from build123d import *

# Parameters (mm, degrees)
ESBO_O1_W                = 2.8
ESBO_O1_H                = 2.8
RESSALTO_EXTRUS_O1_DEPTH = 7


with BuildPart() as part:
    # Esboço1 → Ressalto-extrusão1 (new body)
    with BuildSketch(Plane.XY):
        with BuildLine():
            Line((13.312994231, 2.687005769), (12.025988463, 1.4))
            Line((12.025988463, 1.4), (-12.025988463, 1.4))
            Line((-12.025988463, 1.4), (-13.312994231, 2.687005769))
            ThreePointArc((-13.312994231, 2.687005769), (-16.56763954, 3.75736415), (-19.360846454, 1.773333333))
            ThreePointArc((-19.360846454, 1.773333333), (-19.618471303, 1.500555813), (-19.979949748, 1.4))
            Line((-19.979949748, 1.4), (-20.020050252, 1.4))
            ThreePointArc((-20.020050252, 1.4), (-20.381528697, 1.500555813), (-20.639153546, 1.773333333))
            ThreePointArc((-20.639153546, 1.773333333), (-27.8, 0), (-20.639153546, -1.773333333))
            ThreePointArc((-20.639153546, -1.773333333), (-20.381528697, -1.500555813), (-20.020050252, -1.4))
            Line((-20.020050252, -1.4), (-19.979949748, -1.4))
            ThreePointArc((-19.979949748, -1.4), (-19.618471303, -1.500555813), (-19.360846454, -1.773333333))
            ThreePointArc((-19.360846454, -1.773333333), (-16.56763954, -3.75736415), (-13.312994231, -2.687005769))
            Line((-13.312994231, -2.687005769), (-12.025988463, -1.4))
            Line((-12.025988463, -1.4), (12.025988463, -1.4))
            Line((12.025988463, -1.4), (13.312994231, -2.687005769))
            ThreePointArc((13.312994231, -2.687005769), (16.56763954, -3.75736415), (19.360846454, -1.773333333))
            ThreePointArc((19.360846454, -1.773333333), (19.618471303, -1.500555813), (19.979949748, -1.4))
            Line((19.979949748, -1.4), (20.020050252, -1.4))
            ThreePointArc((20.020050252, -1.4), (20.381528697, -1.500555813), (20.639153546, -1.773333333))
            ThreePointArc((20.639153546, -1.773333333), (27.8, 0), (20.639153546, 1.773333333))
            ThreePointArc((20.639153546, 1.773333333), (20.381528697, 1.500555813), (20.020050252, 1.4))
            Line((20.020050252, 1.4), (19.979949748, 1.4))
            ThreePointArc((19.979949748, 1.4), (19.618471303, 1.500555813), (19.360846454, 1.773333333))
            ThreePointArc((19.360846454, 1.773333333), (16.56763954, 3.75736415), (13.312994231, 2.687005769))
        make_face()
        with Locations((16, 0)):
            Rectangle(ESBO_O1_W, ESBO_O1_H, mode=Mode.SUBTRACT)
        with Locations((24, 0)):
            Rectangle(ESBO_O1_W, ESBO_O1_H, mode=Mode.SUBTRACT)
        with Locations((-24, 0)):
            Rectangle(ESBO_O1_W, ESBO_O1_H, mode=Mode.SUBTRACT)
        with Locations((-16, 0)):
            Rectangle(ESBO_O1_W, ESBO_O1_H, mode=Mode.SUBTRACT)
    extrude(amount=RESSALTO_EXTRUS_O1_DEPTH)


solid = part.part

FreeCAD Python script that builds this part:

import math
import FreeCAD as App
import Part
import Sketcher

V = App.Vector
Q = App.Units.Quantity


def add_polygon(sketch, points):
    """Adds a closed chain of lines whose ends are joined by coincident constraints."""
    first, n = sketch.GeometryCount, len(points)
    for a, b in zip(points, points[1:] + points[:1]):
        sketch.addGeometry(Part.LineSegment(App.Vector(*a, 0), App.Vector(*b, 0)), False)
    for i in range(n):
        sketch.addConstraint(Sketcher.Constraint("Coincident", first + i, 2, first + (i + 1) % n, 1))

doc = App.newDocument("Part")
body = doc.addObject("PartDesign::Body", "Body")

# Sketch on XY plane
sketch1 = body.newObject("Sketcher::SketchObject", "Sketch")
sketch1.AttachmentSupport = (doc.getObject("XY_Plane"), [""])
sketch1.MapMode = "FlatFace"
sketch1.addGeometry(Part.LineSegment(V(13.313, 2.687, 0), V(12.026, 1.4, 0)), False)  # 0
sketch1.addGeometry(Part.LineSegment(V(12.026, 1.4, 0), V(-12.026, 1.4, 0)), False)  # 1
sketch1.addGeometry(Part.LineSegment(V(-12.026, 1.4, 0), V(-13.313, 2.687, 0)), False)  # 2
sketch1.addGeometry(Part.ArcOfCircle(Part.Circle(V(-16, 0, 0), V(0, 0, 1), 3.8), math.radians(45), math.radians(152)), False)  # 3
sketch1.addGeometry(Part.ArcOfCircle(Part.Circle(V(-19.98, 2.1, 0), V(0, 0, 1), 0.7), math.radians(-90), math.radians(-28)), False)  # 4
sketch1.addGeometry(Part.LineSegment(V(-19.98, 1.4, 0), V(-20.02, 1.4, 0)), False)  # 5
sketch1.addGeometry(Part.ArcOfCircle(Part.Circle(V(-20.02, 2.1, 0), V(0, 0, 1), 0.7), math.radians(-152), math.radians(-90)), False)  # 6
sketch1.addGeometry(Part.ArcOfCircle(Part.Circle(V(-24, 0, 0), V(0, 0, 1), 3.8), math.radians(28), math.radians(332)), False)  # 7
sketch1.addGeometry(Part.ArcOfCircle(Part.Circle(V(-20.02, -2.1, 0), V(0, 0, 1), 0.7), math.radians(90), math.radians(152)), False)  # 8
sketch1.addGeometry(Part.LineSegment(V(-20.02, -1.4, 0), V(-19.98, -1.4, 0)), False)  # 9
sketch1.addGeometry(Part.ArcOfCircle(Part.Circle(V(-19.98, -2.1, 0), V(0, 0, 1), 0.7), math.radians(28), math.radians(90)), False)  # 10
sketch1.addGeometry(Part.ArcOfCircle(Part.Circle(V(-16, 0, 0), V(0, 0, 1), 3.8), math.radians(-152), math.radians(-45)), False)  # 11
sketch1.addGeometry(Part.LineSegment(V(-13.313, -2.687, 0), V(-12.026, -1.4, 0)), False)  # 12
sketch1.addGeometry(Part.LineSegment(V(-12.026, -1.4, 0), V(12.026, -1.4, 0)), False)  # 13
sketch1.addGeometry(Part.LineSegment(V(12.026, -1.4, 0), V(13.313, -2.687, 0)), False)  # 14
sketch1.addGeometry(Part.ArcOfCircle(Part.Circle(V(16, 0, 0), V(0, 0, 1), 3.8), math.radians(-135), math.radians(-28)), False)  # 15
sketch1.addGeometry(Part.ArcOfCircle(Part.Circle(V(19.98, -2.1, 0), V(0, 0, 1), 0.7), math.radians(90), math.radians(152)), False)  # 16
sketch1.addGeometry(Part.LineSegment(V(19.98, -1.4, 0), V(20.02, -1.4, 0)), False)  # 17
sketch1.addGeometry(Part.ArcOfCircle(Part.Circle(V(20.02, -2.1, 0), V(0, 0, 1), 0.7), math.radians(28), math.radians(90)), False)  # 18
sketch1.addGeometry(Part.ArcOfCircle(Part.Circle(V(24, 0, 0), V(0, 0, 1), 3.8), math.radians(-152), math.radians(152)), False)  # 19
sketch1.addGeometry(Part.ArcOfCircle(Part.Circle(V(20.02, 2.1, 0), V(0, 0, 1), 0.7), math.radians(-90), math.radians(-28)), False)  # 20
sketch1.addGeometry(Part.LineSegment(V(20.02, 1.4, 0), V(19.98, 1.4, 0)), False)  # 21
sketch1.addGeometry(Part.ArcOfCircle(Part.Circle(V(19.98, 2.1, 0), V(0, 0, 1), 0.7), math.radians(-152), math.radians(-90)), False)  # 22
sketch1.addGeometry(Part.ArcOfCircle(Part.Circle(V(16, 0, 0), V(0, 0, 1), 3.8), math.radians(28), math.radians(135)), False)  # 23
add_polygon(sketch1, [(-22.6, -1.4), (-25.4, -1.4), (-25.4, 1.4), (-22.6, 1.4)])  # lines 24-27
add_polygon(sketch1, [(-14.6, -1.4), (-17.4, -1.4), (-17.4, 1.4), (-14.6, 1.4)])  # lines 28-31
add_polygon(sketch1, [(17.4, -1.4), (14.6, -1.4), (14.6, 1.4), (17.4, 1.4)])  # lines 32-35
add_polygon(sketch1, [(25.4, -1.4), (22.6, -1.4), (22.6, 1.4), (25.4, 1.4)])  # lines 36-39
sketch1.addConstraint(Sketcher.Constraint("Coincident", 0, 2, 1, 1))
sketch1.addConstraint(Sketcher.Constraint("Coincident", 1, 2, 2, 1))
sketch1.addConstraint(Sketcher.Constraint("Tangent", 2, 2, 3, 1))
sketch1.addConstraint(Sketcher.Constraint("Tangent", 3, 2, 4, 2))
sketch1.addConstraint(Sketcher.Constraint("Tangent", 4, 1, 5, 1))
sketch1.addConstraint(Sketcher.Constraint("Tangent", 5, 2, 6, 2))
sketch1.addConstraint(Sketcher.Constraint("Tangent", 6, 1, 7, 1))
sketch1.addConstraint(Sketcher.Constraint("Tangent", 7, 2, 8, 2))
sketch1.addConstraint(Sketcher.Constraint("Tangent", 8, 1, 9, 1))
sketch1.addConstraint(Sketcher.Constraint("Tangent", 9, 2, 10, 2))
sketch1.addConstraint(Sketcher.Constraint("Tangent", 10, 1, 11, 1))
sketch1.addConstraint(Sketcher.Constraint("Tangent", 11, 2, 12, 1))
sketch1.addConstraint(Sketcher.Constraint("Coincident", 12, 2, 13, 1))
sketch1.addConstraint(Sketcher.Constraint("Coincident", 13, 2, 14, 1))
sketch1.addConstraint(Sketcher.Constraint("Tangent", 14, 2, 15, 1))
sketch1.addConstraint(Sketcher.Constraint("Tangent", 15, 2, 16, 2))
sketch1.addConstraint(Sketcher.Constraint("Tangent", 16, 1, 17, 1))
sketch1.addConstraint(Sketcher.Constraint("Tangent", 17, 2, 18, 2))
sketch1.addConstraint(Sketcher.Constraint("Tangent", 18, 1, 19, 1))
sketch1.addConstraint(Sketcher.Constraint("Tangent", 19, 2, 20, 2))
sketch1.addConstraint(Sketcher.Constraint("Tangent", 20, 1, 21, 1))
sketch1.addConstraint(Sketcher.Constraint("Tangent", 21, 2, 22, 2))
sketch1.addConstraint(Sketcher.Constraint("Tangent", 22, 1, 23, 1))
sketch1.addConstraint(Sketcher.Constraint("Tangent", 23, 2, 0, 1))
sketch1.addConstraint(Sketcher.Constraint("Horizontal", 1))
sketch1.addConstraint(Sketcher.Constraint("Horizontal", 5))
sketch1.addConstraint(Sketcher.Constraint("Horizontal", 9))
sketch1.addConstraint(Sketcher.Constraint("Horizontal", 13))
sketch1.addConstraint(Sketcher.Constraint("Horizontal", 17))
sketch1.addConstraint(Sketcher.Constraint("Horizontal", 21))
sketch1.addConstraint(Sketcher.Constraint("Horizontal", 24))
sketch1.addConstraint(Sketcher.Constraint("Vertical", 25))
sketch1.addConstraint(Sketcher.Constraint("Horizontal", 26))
sketch1.addConstraint(Sketcher.Constraint("Vertical", 27))
sketch1.addConstraint(Sketcher.Constraint("Horizontal", 28))
sketch1.addConstraint(Sketcher.Constraint("Vertical", 29))
sketch1.addConstraint(Sketcher.Constraint("Horizontal", 30))
sketch1.addConstraint(Sketcher.Constraint("Vertical", 31))
sketch1.addConstraint(Sketcher.Constraint("Horizontal", 32))
sketch1.addConstraint(Sketcher.Constraint("Vertical", 33))
sketch1.addConstraint(Sketcher.Constraint("Horizontal", 34))
sketch1.addConstraint(Sketcher.Constraint("Vertical", 35))
sketch1.addConstraint(Sketcher.Constraint("Horizontal", 36))
sketch1.addConstraint(Sketcher.Constraint("Vertical", 37))
sketch1.addConstraint(Sketcher.Constraint("Horizontal", 38))
sketch1.addConstraint(Sketcher.Constraint("Vertical", 39))
sketch1.addConstraint(Sketcher.Constraint("Coincident", 11, 3, 3, 3))
sketch1.addConstraint(Sketcher.Constraint("Coincident", 23, 3, 15, 3))
sketch1.addConstraint(Sketcher.Constraint("Equal", 4, 6))
sketch1.addConstraint(Sketcher.Constraint("Equal", 3, 7))
sketch1.addConstraint(Sketcher.Constraint("Equal", 6, 8))
sketch1.addConstraint(Sketcher.Constraint("Equal", 8, 10))
sketch1.addConstraint(Sketcher.Constraint("Equal", 7, 11))
sketch1.addConstraint(Sketcher.Constraint("Equal", 11, 15))
sketch1.addConstraint(Sketcher.Constraint("Equal", 10, 16))
sketch1.addConstraint(Sketcher.Constraint("Equal", 16, 18))
sketch1.addConstraint(Sketcher.Constraint("Equal", 15, 19))
sketch1.addConstraint(Sketcher.Constraint("Equal", 18, 20))
sketch1.addConstraint(Sketcher.Constraint("Equal", 20, 22))
sketch1.addConstraint(Sketcher.Constraint("Equal", 19, 23))
sketch1.addConstraint(Sketcher.Constraint("Symmetric", 3, 3, 15, 3, -1, 1))
sketch1.addConstraint(Sketcher.Constraint("Symmetric", 6, 3, 18, 3, -1, 1))
sketch1.addConstraint(Sketcher.Constraint("Symmetric", 8, 3, 20, 3, -1, 1))
sketch1.addConstraint(Sketcher.Constraint("Symmetric", 0, 2, 12, 2, -1, 1))
sketch1.addConstraint(Sketcher.Constraint("Symmetric", 30, 2, 32, 2, -1, 1))
sketch1.addConstraint(Sketcher.Constraint("Symmetric", 28, 2, 34, 2, -1, 1))
sketch1.addConstraint(Sketcher.Constraint("Symmetric", 26, 2, 36, 2, -1, 1))
sketch1.addConstraint(Sketcher.Constraint("Symmetric", 24, 2, 38, 2, -1, 1))
sketch1.addConstraint(Sketcher.Constraint("Symmetric", 10, 3, 16, 3, -2))
sketch1.addConstraint(Sketcher.Constraint("PointOnObject", 7, 3, -1))
sketch1.addConstraint(Sketcher.Constraint("Perpendicular", 0, 2))
sketch1.addConstraint(Sketcher.Constraint("Perpendicular", 12, 14))
sketch1.addConstraint(Sketcher.Constraint("Horizontal", 1, 2, 4, 1))
sketch1.addConstraint(Sketcher.Constraint("Horizontal", 11, 2, 14, 2))
sketch1.addConstraint(Sketcher.Constraint("Horizontal", 17, 2, 24, 2))
sketch1.addConstraint(Sketcher.Constraint("Horizontal", 21, 2, 25, 2))
sketch1.addConstraint(Sketcher.Constraint("Horizontal", 27, 2, 28, 2))
sketch1.addConstraint(Sketcher.Constraint("Horizontal", 26, 2, 29, 2))
sketch1.addConstraint(Sketcher.Constraint("Equal", 26, 28))
sketch1.addConstraint(Sketcher.Constraint("Equal", 38, 25))
sketch1.addConstraint(Sketcher.Constraint("Radius", 3, Q("3.8 mm")))
sketch1.addConstraint(Sketcher.Constraint("Radius", 4, Q("0.7 mm")))
sketch1.addConstraint(Sketcher.Constraint("DistanceX", 24, 2, 24, 1, Q("2.8 mm")))
sketch1.addConstraint(Sketcher.Constraint("DistanceX", 3, 3, -1, 1, Q("16 mm")))
sketch1.addConstraint(Sketcher.Constraint("DistanceX", 7, 3, -1, 1, Q("24 mm")))
sketch1.addConstraint(Sketcher.Constraint("DistanceX", 24, 2, -1, 1, Q("25.4 mm")))
sketch1.addConstraint(Sketcher.Constraint("DistanceX", 28, 2, -1, 1, Q("17.4 mm")))
pad1 = body.newObject("PartDesign::Pad", "Pad")
pad1.Profile = sketch1
pad1.Length = 7

doc.recompute()
